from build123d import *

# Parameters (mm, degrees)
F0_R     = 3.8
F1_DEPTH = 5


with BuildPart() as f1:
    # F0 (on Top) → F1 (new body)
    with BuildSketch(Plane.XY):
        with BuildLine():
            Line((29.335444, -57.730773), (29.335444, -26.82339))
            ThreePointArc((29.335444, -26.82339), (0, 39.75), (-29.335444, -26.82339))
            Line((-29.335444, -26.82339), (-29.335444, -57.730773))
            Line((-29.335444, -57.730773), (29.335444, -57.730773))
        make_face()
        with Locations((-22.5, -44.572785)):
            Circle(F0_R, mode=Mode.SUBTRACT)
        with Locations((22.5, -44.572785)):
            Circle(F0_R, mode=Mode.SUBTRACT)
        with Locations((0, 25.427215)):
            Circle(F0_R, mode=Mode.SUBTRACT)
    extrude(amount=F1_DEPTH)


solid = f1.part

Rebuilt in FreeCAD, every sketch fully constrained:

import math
import FreeCAD as App
import Part
import Sketcher
from FreeCAD import Vector

doc = App.newDocument("Part")
body = doc.addObject("PartDesign::Body", "Body")

sketch1 = body.newObject("Sketcher::SketchObject", "Sketch")
sketch1.AttachmentSupport = (doc.getObject("XY_Plane"), [""])
sketch1.MapMode = "FlatFace"
sketch1.addGeometry([
    Part.LineSegment(Vector(29.3, -57.7, 0), Vector(29.3, -26.8, 0)),
    Part.ArcOfCircle(Part.Circle(Vector(0, 0, 0), Vector(0, 0, 1), 39.8), math.radians(-42), math.radians(222)),
    Part.LineSegment(Vector(-29.3, -26.8, 0), Vector(-29.3, -57.7, 0)),
    Part.LineSegment(Vector(-29.3, -57.7, 0), Vector(29.3, -57.7, 0)),
    Part.Circle(Vector(-22.5, -44.6, 0), Vector(0, 0, 1), 3.8),
    Part.Circle(Vector(22.5, -44.6, 0), Vector(0, 0, 1), 3.8),
    Part.Circle(Vector(0, 25.4, 0), Vector(0, 0, 1), 3.8),
], False)
sketch1.addConstraint([
    Sketcher.Constraint("Coincident", 0, 2, 1, 1),
    Sketcher.Constraint("Coincident", 1, 2, 2, 1),
    Sketcher.Constraint("Coincident", 2, 2, 3, 1),
    Sketcher.Constraint("Coincident", 3, 2, 0, 1),
    Sketcher.Constraint("Vertical", 0),
    Sketcher.Constraint("Vertical", 2),
    Sketcher.Constraint("Horizontal", 3),
    Sketcher.Constraint("Coincident", 1, 3, -1, 1),
    Sketcher.Constraint("Equal", 4, 5),
    Sketcher.Constraint("Equal", 5, 6),
    Sketcher.Constraint("Symmetric", 4, 3, 5, 3, -2),
    Sketcher.Constraint("PointOnObject", 6, 3, -2),
    Sketcher.Constraint("Horizontal", 0, 2, 1, 2),
    Sketcher.Constraint("Diameter", 4, 7.6),
    Sketcher.Constraint("Radius", 1, 39.75),
    Sketcher.Constraint("DistanceX", 4, 3, 5, 3, 45.0),
    Sketcher.Constraint("DistanceY", 4, 3, 6, 3, 70.0),
    Sketcher.Constraint("DistanceX", 3, 1, 3, 2, 58.670888),
    Sketcher.Constraint("DistanceY", 0, 1, 0, 2, 30.907383),
    Sketcher.Constraint("DistanceY", 4, 3, -1, 1, 44.572785),
])
pad1 = body.newObject("PartDesign::Pad", "Pad")
pad1.Profile = sketch1
pad1.Length = 5

doc.recompute()
